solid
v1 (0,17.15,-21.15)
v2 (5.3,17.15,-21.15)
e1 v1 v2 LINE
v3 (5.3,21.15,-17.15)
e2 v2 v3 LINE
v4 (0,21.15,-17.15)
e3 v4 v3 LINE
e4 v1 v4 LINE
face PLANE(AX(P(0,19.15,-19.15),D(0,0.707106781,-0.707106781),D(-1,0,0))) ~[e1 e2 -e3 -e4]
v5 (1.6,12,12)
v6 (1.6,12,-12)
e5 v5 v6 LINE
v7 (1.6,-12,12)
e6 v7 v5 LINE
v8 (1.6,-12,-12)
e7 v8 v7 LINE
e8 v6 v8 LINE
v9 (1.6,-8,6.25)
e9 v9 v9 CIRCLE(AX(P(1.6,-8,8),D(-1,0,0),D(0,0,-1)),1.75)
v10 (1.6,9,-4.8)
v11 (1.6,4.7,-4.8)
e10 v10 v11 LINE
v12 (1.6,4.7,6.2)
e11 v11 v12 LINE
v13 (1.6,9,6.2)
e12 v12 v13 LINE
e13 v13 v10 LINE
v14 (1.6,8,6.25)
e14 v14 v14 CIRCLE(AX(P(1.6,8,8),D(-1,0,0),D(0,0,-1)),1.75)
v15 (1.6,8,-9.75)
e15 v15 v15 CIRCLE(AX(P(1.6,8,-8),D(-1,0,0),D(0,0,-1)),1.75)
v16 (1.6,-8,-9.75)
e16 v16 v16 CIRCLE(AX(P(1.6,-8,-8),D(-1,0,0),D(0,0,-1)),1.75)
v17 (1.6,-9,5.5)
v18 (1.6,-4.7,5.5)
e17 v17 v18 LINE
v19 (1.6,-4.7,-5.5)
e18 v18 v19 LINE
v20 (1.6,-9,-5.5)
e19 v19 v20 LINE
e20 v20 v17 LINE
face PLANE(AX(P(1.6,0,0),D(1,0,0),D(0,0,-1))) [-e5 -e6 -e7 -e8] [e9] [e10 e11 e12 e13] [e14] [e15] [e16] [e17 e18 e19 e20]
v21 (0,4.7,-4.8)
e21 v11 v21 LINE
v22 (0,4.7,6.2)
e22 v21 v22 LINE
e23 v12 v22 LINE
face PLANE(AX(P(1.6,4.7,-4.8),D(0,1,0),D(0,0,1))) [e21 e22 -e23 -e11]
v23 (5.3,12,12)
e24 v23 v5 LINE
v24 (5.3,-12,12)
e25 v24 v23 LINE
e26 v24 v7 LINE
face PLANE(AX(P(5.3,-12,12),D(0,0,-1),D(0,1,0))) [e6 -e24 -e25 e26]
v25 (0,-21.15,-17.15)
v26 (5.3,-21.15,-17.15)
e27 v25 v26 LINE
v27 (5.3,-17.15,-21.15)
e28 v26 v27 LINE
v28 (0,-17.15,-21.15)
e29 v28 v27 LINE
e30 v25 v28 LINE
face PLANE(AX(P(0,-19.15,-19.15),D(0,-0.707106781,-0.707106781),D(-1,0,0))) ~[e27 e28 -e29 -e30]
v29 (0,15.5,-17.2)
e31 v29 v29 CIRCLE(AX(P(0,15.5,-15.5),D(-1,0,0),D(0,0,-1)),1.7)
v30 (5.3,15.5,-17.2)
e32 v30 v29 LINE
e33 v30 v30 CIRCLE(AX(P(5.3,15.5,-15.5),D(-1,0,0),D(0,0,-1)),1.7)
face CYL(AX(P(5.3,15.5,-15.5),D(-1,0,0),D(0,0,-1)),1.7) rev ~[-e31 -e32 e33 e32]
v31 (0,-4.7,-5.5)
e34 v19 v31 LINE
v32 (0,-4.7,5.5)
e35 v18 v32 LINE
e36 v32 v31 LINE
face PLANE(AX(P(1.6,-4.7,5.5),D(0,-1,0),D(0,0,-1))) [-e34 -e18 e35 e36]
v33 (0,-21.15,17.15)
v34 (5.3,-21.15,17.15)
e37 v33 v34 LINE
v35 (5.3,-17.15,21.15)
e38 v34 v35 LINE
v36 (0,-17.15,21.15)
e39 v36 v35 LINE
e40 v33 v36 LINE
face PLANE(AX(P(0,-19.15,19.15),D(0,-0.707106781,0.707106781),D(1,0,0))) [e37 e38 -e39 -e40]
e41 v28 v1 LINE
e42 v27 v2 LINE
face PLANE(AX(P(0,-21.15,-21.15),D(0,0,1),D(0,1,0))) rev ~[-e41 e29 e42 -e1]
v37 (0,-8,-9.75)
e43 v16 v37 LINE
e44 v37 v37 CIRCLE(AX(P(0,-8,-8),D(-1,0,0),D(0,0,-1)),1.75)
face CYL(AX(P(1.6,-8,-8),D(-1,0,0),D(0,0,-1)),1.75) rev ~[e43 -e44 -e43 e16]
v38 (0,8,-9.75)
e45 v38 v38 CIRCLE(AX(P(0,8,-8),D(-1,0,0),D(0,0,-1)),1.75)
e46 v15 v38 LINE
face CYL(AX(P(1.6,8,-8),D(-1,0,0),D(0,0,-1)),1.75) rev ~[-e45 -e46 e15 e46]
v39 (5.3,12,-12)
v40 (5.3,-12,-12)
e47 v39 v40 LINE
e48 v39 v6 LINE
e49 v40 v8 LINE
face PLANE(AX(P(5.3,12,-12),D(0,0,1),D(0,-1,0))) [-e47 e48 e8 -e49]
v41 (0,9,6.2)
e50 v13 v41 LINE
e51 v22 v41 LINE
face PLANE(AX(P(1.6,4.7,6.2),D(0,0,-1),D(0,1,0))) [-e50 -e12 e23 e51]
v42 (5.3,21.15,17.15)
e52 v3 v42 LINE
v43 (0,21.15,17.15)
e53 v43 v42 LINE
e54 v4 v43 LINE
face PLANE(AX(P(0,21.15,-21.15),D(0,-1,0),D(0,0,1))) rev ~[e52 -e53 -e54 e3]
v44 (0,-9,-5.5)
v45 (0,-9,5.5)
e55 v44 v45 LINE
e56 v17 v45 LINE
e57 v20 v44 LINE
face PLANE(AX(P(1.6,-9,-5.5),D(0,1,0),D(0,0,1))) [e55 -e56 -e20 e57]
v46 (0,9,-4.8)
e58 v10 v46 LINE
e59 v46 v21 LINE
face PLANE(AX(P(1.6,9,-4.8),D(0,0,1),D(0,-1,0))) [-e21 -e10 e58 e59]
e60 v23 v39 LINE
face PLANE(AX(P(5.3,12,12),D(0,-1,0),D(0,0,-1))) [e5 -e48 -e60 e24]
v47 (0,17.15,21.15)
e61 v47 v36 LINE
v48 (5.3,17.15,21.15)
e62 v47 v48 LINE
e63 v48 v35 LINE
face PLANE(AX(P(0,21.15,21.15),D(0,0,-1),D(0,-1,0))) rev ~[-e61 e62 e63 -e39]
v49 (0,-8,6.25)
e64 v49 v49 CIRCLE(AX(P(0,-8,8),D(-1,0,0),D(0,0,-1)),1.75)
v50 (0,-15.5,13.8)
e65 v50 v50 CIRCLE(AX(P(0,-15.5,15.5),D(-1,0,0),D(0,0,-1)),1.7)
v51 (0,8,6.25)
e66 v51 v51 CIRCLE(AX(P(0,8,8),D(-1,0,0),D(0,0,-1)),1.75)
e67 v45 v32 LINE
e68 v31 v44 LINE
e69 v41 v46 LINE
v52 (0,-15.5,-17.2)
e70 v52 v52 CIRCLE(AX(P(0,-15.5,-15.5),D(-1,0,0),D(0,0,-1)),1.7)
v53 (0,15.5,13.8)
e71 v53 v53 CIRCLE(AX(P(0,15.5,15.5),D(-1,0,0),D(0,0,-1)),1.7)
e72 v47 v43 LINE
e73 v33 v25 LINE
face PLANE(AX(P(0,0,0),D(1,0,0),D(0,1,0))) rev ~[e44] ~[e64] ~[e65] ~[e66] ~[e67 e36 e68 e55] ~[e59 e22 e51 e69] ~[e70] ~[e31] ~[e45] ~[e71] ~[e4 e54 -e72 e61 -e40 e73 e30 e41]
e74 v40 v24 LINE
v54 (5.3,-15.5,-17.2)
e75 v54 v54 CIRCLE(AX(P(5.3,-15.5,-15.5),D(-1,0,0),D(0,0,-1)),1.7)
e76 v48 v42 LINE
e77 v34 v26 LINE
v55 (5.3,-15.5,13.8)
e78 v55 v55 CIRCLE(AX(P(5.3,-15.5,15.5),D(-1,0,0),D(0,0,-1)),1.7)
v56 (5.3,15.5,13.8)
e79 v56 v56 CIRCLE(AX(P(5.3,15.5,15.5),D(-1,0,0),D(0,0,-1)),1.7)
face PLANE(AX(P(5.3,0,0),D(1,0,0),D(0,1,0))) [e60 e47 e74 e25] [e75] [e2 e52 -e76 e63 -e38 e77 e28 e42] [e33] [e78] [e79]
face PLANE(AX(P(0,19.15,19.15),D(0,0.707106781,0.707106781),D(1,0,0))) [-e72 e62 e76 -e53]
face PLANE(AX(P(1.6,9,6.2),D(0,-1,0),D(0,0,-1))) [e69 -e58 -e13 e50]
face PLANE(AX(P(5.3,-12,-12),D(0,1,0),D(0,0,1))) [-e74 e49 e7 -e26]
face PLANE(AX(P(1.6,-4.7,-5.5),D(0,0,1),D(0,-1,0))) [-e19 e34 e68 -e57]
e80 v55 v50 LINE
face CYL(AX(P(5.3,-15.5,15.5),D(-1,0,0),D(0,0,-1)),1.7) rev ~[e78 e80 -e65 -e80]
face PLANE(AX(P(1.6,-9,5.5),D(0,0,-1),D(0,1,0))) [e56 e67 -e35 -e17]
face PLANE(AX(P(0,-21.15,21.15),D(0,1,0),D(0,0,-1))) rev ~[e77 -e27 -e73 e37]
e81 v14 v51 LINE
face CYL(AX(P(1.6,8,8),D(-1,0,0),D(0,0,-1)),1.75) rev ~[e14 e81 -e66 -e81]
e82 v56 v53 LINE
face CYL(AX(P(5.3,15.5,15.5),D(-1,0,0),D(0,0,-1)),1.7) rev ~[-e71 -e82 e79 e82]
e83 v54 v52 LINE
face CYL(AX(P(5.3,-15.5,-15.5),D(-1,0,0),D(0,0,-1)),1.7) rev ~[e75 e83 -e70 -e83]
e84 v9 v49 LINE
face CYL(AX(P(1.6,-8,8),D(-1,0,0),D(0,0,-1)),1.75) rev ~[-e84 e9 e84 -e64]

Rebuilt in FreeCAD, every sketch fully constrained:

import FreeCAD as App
import Part
import Sketcher
Q = App.Units.Quantity


def edges_at(feature, points):
    """Names of the edges that pass closest to the given points."""
    edges = feature.Shape.Edges
    near = lambda p: min(range(len(edges)), key=lambda i: edges[i].distToShape(Part.Vertex(*p))[0])
    return sorted({f"Edge{near(p) + 1}" for p in points})


def add_polygon(sketch, points):
    """Adds a closed chain of lines whose ends are joined by coincident constraints."""
    first, n = sketch.GeometryCount, len(points)
    for a, b in zip(points, points[1:] + points[:1]):
        sketch.addGeometry(Part.LineSegment(App.Vector(*a, 0), App.Vector(*b, 0)), False)
    for i in range(n):
        sketch.addConstraint(Sketcher.Constraint("Coincident", first + i, 2, first + (i + 1) % n, 1))

doc = App.newDocument("Part")
body = doc.addObject("PartDesign::Body", "Body")

sketch1 = body.newObject("Sketcher::SketchObject", "Sketch")
sketch1.AttachmentSupport = (doc.getObject("YZ_Plane"), [""])
sketch1.MapMode = "FlatFace"
add_polygon(sketch1, [(-21, 21), (-21, -21), (21, -21), (21, 21)])
sketch1.addConstraint(Sketcher.Constraint("Vertical", 0))
sketch1.addConstraint(Sketcher.Constraint("Horizontal", 1))
sketch1.addConstraint(Sketcher.Constraint("Vertical", 2))
sketch1.addConstraint(Sketcher.Constraint("Horizontal", 3))
sketch1.addConstraint(Sketcher.Constraint("Symmetric", 0, 2, 2, 2, -1, 1))
sketch1.addConstraint(Sketcher.Constraint("Equal", 3, 0))
sketch1.addConstraint(Sketcher.Constraint("DistanceX", 1, 1, 1, 2, Q("42.3 mm")))
pad1 = body.newObject("PartDesign::Pad", "Pad")
pad1.Profile = sketch1
pad1.Length = 5.3

sketch2 = body.newObject("Sketcher::SketchObject", "Sketch001")
sketch2.AttachmentSupport = (doc.getObject("YZ_Plane"), [""])
sketch2.MapMode = "FlatFace"
sketch2.AttachmentOffset = App.Placement(App.Vector(0, 0, 5.3), App.Rotation())
add_polygon(sketch2, [(-12, 12), (-12, -12), (12, -12), (12, 12)])
sketch2.addConstraint(Sketcher.Constraint("Vertical", 0))
sketch2.addConstraint(Sketcher.Constraint("Horizontal", 1))
sketch2.addConstraint(Sketcher.Constraint("Vertical", 2))
sketch2.addConstraint(Sketcher.Constraint("Horizontal", 3))
sketch2.addConstraint(Sketcher.Constraint("Symmetric", 0, 2, 2, 2, -1, 1))
sketch2.addConstraint(Sketcher.Constraint("Equal", 3, 0))
sketch2.addConstraint(Sketcher.Constraint("DistanceX", 1, 1, 1, 2, Q("24 mm")))
pocket1 = body.newObject("PartDesign::Pocket", "Pocket")
pocket1.Profile = sketch2
pocket1.Length = 3.7

sketch3 = body.newObject("Sketcher::SketchObject", "Sketch002")
sketch3.AttachmentSupport = (doc.getObject("YZ_Plane"), [""])
sketch3.MapMode = "FlatFace"
sketch3.AttachmentOffset = App.Placement(App.Vector(0, 0, 1.6), App.Rotation())
sketch3.addGeometry(Part.Circle(App.Vector(8, 8, 0), App.Vector(0, 0, 1), 1.8), False)
sketch3.addGeometry(Part.Circle(App.Vector(8, -8, 0), App.Vector(0, 0, 1), 1.8), False)
sketch3.addGeometry(Part.Circle(App.Vector(-8, -8, 0), App.Vector(0, 0, 1), 1.8), False)
sketch3.addGeometry(Part.Circle(App.Vector(-8, 8, 0), App.Vector(0, 0, 1), 1.8), False)
sketch3.addConstraint(Sketcher.Constraint("Equal", 0, 1))
sketch3.addConstraint(Sketcher.Constraint("Equal", 1, 2))
sketch3.addConstraint(Sketcher.Constraint("Equal", 2, 3))
sketch3.addConstraint(Sketcher.Constraint("Symmetric", 0, 3, 2, 3, -1, 1))
sketch3.addConstraint(Sketcher.Constraint("Symmetric", 1, 3, 3, 3, -1, 1))
sketch3.addConstraint(Sketcher.Constraint("Symmetric", 1, 3, 2, 3, -2))
sketch3.addConstraint(Sketcher.Constraint("Diameter", 0, Q("3.5 mm")))
sketch3.addConstraint(Sketcher.Constraint("DistanceX", -1, 1, 0, 3, Q("8 mm")))
sketch3.addConstraint(Sketcher.Constraint("DistanceY", -1, 1, 0, 3, Q("8 mm")))
doc.recompute()
hole = body.newObject("PartDesign::Hole", "Hole")
hole.Profile = sketch3
hole.ThreadType = "None"
hole.Diameter = 3.5
hole.DepthType = "ThroughAll"

sketch4 = body.newObject("Sketcher::SketchObject", "Sketch003")
sketch4.AttachmentSupport = (doc.getObject("YZ_Plane"), [""])
sketch4.MapMode = "FlatFace"
sketch4.AttachmentOffset = App.Placement(App.Vector(0, 0, 5.3), App.Rotation())
sketch4.addGeometry(Part.Circle(App.Vector(15.5, 15.5, 0), App.Vector(0, 0, 1), 1.7), False)
sketch4.addGeometry(Part.Circle(App.Vector(15.5, -15.5, 0), App.Vector(0, 0, 1), 1.7), False)
sketch4.addGeometry(Part.Circle(App.Vector(-15.5, -15.5, 0), App.Vector(0, 0, 1), 1.7), False)
sketch4.addGeometry(Part.Circle(App.Vector(-15.5, 15.5, 0), App.Vector(0, 0, 1), 1.7), False)
sketch4.addConstraint(Sketcher.Constraint("Equal", 0, 1))
sketch4.addConstraint(Sketcher.Constraint("Equal", 1, 2))
sketch4.addConstraint(Sketcher.Constraint("Equal", 2, 3))
sketch4.addConstraint(Sketcher.Constraint("Symmetric", 0, 3, 2, 3, -1, 1))
sketch4.addConstraint(Sketcher.Constraint("Symmetric", 1, 3, 3, 3, -1, 1))
sketch4.addConstraint(Sketcher.Constraint("Symmetric", 1, 3, 2, 3, -2))
sketch4.addConstraint(Sketcher.Constraint("Diameter", 0, Q("3.4 mm")))
sketch4.addConstraint(Sketcher.Constraint("DistanceY", 1, 3, 0, 3, Q("31 mm")))
sketch4.addConstraint(Sketcher.Constraint("DistanceX", 2, 3, 1, 3, Q("31 mm")))
doc.recompute()
hole2 = body.newObject("PartDesign::Hole", "Hole001")
hole2.Profile = sketch4
hole2.ThreadType = "None"
hole2.Diameter = 3.4
hole2.DepthType = "ThroughAll"
doc.recompute()

chamfer = body.newObject("PartDesign::Chamfer", "Chamfer")
chamfer.Base = (hole2, edges_at(hole2, [
    (2.65, -21.15, -21.15),
    (2.65, -21.15, 21.15),
    (2.65, 21.15, -21.15),
    (2.65, 21.15, 21.15),
]))
chamfer.Size = 4

sketch5 = body.newObject("Sketcher::SketchObject", "Sketch004")
sketch5.AttachmentSupport = (doc.getObject("YZ_Plane"), [""])
sketch5.MapMode = "FlatFace"
sketch5.AttachmentOffset = App.Placement(App.Vector(0, 0, 1.6), App.Rotation())
add_polygon(sketch5, [(9, -4.8), (9, 6.2), (4.7, 6.2), (4.7, -4.8)])
sketch5.addConstraint(Sketcher.Constraint("Vertical", 0))
sketch5.addConstraint(Sketcher.Constraint("Horizontal", 1))
sketch5.addConstraint(Sketcher.Constraint("Vertical", 2))
sketch5.addConstraint(Sketcher.Constraint("Horizontal", 3))
sketch5.addConstraint(Sketcher.Constraint("DistanceY", 0, 1, 0, 2, Q("11 mm")))
sketch5.addConstraint(Sketcher.Constraint("DistanceX", 1, 2, 1, 1, Q("4.3 mm")))
sketch5.addConstraint(Sketcher.Constraint("DistanceX", -1, 1, 0, 2, Q("9 mm")))
sketch5.addConstraint(Sketcher.Constraint("DistanceY", -1, 1, 0, 2, Q("6.2 mm")))
pocket2 = body.newObject("PartDesign::Pocket", "Pocket001")
pocket2.Profile = sketch5
pocket2.Length = 10

sketch6 = body.newObject("Sketcher::SketchObject", "Sketch005")
sketch6.AttachmentSupport = (doc.getObject("YZ_Plane"), [""])
sketch6.MapMode = "FlatFace"
sketch6.AttachmentOffset = App.Placement(App.Vector(0, 0, 1.6), App.Rotation())
add_polygon(sketch6, [(-4.7, -5.5), (-4.7, 5.5), (-9, 5.5), (-9, -5.5)])
sketch6.addConstraint(Sketcher.Constraint("Vertical", 0))
sketch6.addConstraint(Sketcher.Constraint("Horizontal", 1))
sketch6.addConstraint(Sketcher.Constraint("Vertical", 2))
sketch6.addConstraint(Sketcher.Constraint("Horizontal", 3))
sketch6.addConstraint(Sketcher.Constraint("DistanceY", 0, 1, 0, 2, Q("11 mm")))
sketch6.addConstraint(Sketcher.Constraint("DistanceX", 1, 2, 1, 1, Q("4.3 mm")))
sketch6.addConstraint(Sketcher.Constraint("DistanceY", -1, 1, 0, 2, Q("5.5 mm")))
sketch6.addConstraint(Sketcher.Constraint("DistanceX", 1, 2, -1, 1, Q("9 mm")))
pocket3 = body.newObject("PartDesign::Pocket", "Pocket002")
pocket3.Profile = sketch6
pocket3.Length = 10

doc.recompute()
